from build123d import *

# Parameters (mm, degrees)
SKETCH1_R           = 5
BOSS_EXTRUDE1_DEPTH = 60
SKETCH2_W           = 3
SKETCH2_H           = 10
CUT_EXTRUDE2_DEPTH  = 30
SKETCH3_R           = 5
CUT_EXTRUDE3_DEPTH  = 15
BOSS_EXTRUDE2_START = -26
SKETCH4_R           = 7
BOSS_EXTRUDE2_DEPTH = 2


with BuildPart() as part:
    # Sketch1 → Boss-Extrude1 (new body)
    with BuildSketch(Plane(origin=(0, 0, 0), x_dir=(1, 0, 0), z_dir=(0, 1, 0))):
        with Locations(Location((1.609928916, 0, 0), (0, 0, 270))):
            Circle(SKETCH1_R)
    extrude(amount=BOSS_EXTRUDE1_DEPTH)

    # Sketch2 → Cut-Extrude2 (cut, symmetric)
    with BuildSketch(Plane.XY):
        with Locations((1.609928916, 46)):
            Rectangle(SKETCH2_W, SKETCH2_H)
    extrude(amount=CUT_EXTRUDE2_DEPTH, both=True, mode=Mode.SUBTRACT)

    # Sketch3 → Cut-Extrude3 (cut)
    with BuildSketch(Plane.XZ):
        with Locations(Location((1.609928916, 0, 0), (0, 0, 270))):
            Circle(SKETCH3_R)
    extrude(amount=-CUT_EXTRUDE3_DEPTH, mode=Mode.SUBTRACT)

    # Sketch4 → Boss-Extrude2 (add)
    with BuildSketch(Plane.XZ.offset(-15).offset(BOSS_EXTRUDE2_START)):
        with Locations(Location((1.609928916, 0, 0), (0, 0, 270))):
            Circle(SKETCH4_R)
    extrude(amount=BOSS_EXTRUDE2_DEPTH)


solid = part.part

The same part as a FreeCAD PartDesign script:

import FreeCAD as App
import Part
import Sketcher
from FreeCAD import Vector
Q = App.Units.Quantity

doc = App.newDocument("Part")
body = doc.addObject("PartDesign::Body", "Body")

# Sketch on XZ plane
sketch1 = doc.addObject("Sketcher::SketchObject", "Sketch")
body.addObject(sketch1)
sketch1.AttachmentSupport = (doc.XZ_Plane, [""])
sketch1.MapMode = "FlatFace"
sketch1.addGeometry(Part.Circle(Vector(2, 0, 0), Vector(0, 0, 1), 5), False)
sketch1.addConstraint([
    Sketcher.Constraint("PointOnObject", 0, 3, -1),
    Sketcher.Constraint("Diameter", 0, Q("10 mm")),
    Sketcher.Constraint("DistanceX", -1, 1, 0, 3, Q("1.609929 mm")),
])
pad1 = doc.addObject("PartDesign::Pad", "Pad")
body.addObject(pad1)
pad1.Profile = sketch1
pad1.Length = 60
pad1.Reversed = True

# Sketch on XY plane
sketch2 = doc.addObject("Sketcher::SketchObject", "Sketch001")
body.addObject(sketch2)
sketch2.AttachmentSupport = (doc.XY_Plane, [""])
sketch2.MapMode = "FlatFace"
sketch2.addGeometry([
    Part.LineSegment(Vector(0.1, 51, 0), Vector(0.1, 41, 0)),
    Part.LineSegment(Vector(0.1, 41, 0), Vector(3.1, 41, 0)),
    Part.LineSegment(Vector(3.1, 41, 0), Vector(3.1, 51, 0)),
    Part.LineSegment(Vector(3.1, 51, 0), Vector(0.1, 51, 0)),
], False)
sketch2.addConstraint([
    Sketcher.Constraint("Coincident", 0, 2, 1, 1),
    Sketcher.Constraint("Coincident", 1, 2, 2, 1),
    Sketcher.Constraint("Coincident", 2, 2, 3, 1),
    Sketcher.Constraint("Coincident", 3, 2, 0, 1),
    Sketcher.Constraint("Vertical", 0),
    Sketcher.Constraint("Horizontal", 1),
    Sketcher.Constraint("Vertical", 2),
    Sketcher.Constraint("Horizontal", 3),
    Sketcher.Constraint("DistanceX", 1, 1, 1, 2, Q("3 mm")),
    Sketcher.Constraint("DistanceY", 0, 2, 0, 1, Q("10 mm")),
    Sketcher.Constraint("DistanceY", -1, 1, 0, 2, Q("41 mm")),
    Sketcher.Constraint("DistanceX", -1, 1, 0, 2, Q("0.109929 mm")),
])
pocket1 = doc.addObject("PartDesign::Pocket", "Pocket")
body.addObject(pocket1)
pocket1.Profile = sketch2
pocket1.Length = 60
pocket1.Midplane = True

# Sketch on XZ plane
sketch3 = doc.addObject("Sketcher::SketchObject", "Sketch002")
body.addObject(sketch3)
sketch3.AttachmentSupport = (doc.XZ_Plane, [""])
sketch3.MapMode = "FlatFace"
sketch3.addGeometry(Part.Circle(Vector(2, 0, 0), Vector(0, 0, 1), 5), False)
sketch3.addConstraint([
    Sketcher.Constraint("PointOnObject", 0, 3, -1),
    Sketcher.Constraint("Diameter", 0, Q("10 mm")),
    Sketcher.Constraint("DistanceX", -1, 1, 0, 3, Q("1.609929 mm")),
])
pocket2 = doc.addObject("PartDesign::Pocket", "Pocket001")
body.addObject(pocket2)
pocket2.Profile = sketch3
pocket2.Length = 15

# Sketch on XZ plane
sketch4 = doc.addObject("Sketcher::SketchObject", "Sketch003")
body.addObject(sketch4)
sketch4.AttachmentSupport = (doc.XZ_Plane, [""])
sketch4.MapMode = "FlatFace"
sketch4.AttachmentOffset = App.Placement(Vector(0, 0, -41), App.Rotation())
sketch4.addGeometry(Part.Circle(Vector(2, 0, 0), Vector(0, 0, 1), 7), False)
sketch4.addConstraint([
    Sketcher.Constraint("PointOnObject", 0, 3, -1),
    Sketcher.Constraint("Diameter", 0, Q("14 mm")),
    Sketcher.Constraint("DistanceX", -1, 1, 0, 3, Q("1.609929 mm")),
])
pad2 = doc.addObject("PartDesign::Pad", "Pad001")
body.addObject(pad2)
pad2.Profile = sketch4
pad2.Length = 2

doc.recompute()
